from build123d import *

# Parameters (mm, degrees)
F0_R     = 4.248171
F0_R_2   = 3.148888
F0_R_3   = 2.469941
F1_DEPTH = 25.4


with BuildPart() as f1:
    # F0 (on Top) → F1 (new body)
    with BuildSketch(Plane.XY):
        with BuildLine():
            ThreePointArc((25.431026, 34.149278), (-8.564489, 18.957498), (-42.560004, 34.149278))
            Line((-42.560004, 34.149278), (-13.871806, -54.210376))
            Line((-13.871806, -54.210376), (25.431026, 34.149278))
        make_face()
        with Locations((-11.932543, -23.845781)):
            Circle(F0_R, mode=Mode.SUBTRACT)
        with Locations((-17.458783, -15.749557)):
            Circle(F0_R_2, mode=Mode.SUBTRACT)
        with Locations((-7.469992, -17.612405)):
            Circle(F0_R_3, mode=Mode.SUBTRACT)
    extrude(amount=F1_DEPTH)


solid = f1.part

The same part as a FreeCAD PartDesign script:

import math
import FreeCAD as App
import Part
import Sketcher

V = App.Vector
Q = App.Units.Quantity

doc = App.newDocument("Part")
body = doc.addObject("PartDesign::Body", "Body")

# Sketch on XY plane
sketch1 = body.newObject("Sketcher::SketchObject", "Sketch")
sketch1.AttachmentSupport = (doc.getObject("XY_Plane"), [""])
sketch1.MapMode = "FlatFace"
sketch1.addGeometry([
    Part.ArcOfCircle(Part.Circle(V(-8.6, 64.6, 0), V(0, 0, 1), 45.6), math.radians(-138), math.radians(-42)),  # 0
    Part.LineSegment(V(-42.6, 34.1, 0), V(-13.9, -54.2, 0)),  # 1
    Part.LineSegment(V(-13.9, -54.2, 0), V(25.4, 34.1, 0)),  # 2
    Part.Circle(V(-11.9, -23.8, 0), V(0, 0, 1), 4.2),  # 3
    Part.Circle(V(-17.5, -15.7, 0), V(0, 0, 1), 3.1),  # 4
    Part.Circle(V(-7.5, -17.6, 0), V(0, 0, 1), 2.5),  # 5
], False)
sketch1.addConstraint([
    Sketcher.Constraint("Coincident", 0, 1, 1, 1),
    Sketcher.Constraint("Coincident", 1, 2, 2, 1),
    Sketcher.Constraint("Coincident", 2, 2, 0, 2),
    Sketcher.Constraint("Horizontal", 0, 1, 2, 2),
    Sketcher.Constraint("Diameter", 3, Q("8.496342 mm")),
    Sketcher.Constraint("Diameter", 4, Q("6.297776 mm")),
    Sketcher.Constraint("Diameter", 5, Q("4.939882 mm")),
    Sketcher.Constraint("Radius", 0, Q("45.632744 mm")),
    Sketcher.Constraint("DistanceY", 4, 3, 0, 3, Q("80.339799 mm")),
    Sketcher.Constraint("DistanceX", 0, 1, 1, 2, Q("28.688198 mm")),
    Sketcher.Constraint("Distance", 2, Q("96.706469 mm")),
    Sketcher.Constraint("DistanceX", 0, 3, -1, 1, Q("8.564489 mm")),
    Sketcher.Constraint("DistanceY", 3, 3, -1, 1, Q("23.845781 mm")),
    Sketcher.Constraint("DistanceY", -1, 1, 2, 2, Q("34.149278 mm")),
    Sketcher.Constraint("DistanceX", 4, 3, 3, 3, Q("5.52624 mm")),
    Sketcher.Constraint("DistanceX", 3, 3, 5, 3, Q("4.462551 mm")),
    Sketcher.Constraint("DistanceX", 0, 1, 4, 3, Q("25.101221 mm")),
    Sketcher.Constraint("DistanceY", 1, 2, 5, 3, Q("36.597971 mm")),
    Sketcher.Constraint("DistanceY", 1, 2, 4, 3, Q("38.460819 mm")),
])
pad1 = body.newObject("PartDesign::Pad", "Pad")
pad1.Profile = sketch1
pad1.Length = Q("1 in")

doc.recompute()
